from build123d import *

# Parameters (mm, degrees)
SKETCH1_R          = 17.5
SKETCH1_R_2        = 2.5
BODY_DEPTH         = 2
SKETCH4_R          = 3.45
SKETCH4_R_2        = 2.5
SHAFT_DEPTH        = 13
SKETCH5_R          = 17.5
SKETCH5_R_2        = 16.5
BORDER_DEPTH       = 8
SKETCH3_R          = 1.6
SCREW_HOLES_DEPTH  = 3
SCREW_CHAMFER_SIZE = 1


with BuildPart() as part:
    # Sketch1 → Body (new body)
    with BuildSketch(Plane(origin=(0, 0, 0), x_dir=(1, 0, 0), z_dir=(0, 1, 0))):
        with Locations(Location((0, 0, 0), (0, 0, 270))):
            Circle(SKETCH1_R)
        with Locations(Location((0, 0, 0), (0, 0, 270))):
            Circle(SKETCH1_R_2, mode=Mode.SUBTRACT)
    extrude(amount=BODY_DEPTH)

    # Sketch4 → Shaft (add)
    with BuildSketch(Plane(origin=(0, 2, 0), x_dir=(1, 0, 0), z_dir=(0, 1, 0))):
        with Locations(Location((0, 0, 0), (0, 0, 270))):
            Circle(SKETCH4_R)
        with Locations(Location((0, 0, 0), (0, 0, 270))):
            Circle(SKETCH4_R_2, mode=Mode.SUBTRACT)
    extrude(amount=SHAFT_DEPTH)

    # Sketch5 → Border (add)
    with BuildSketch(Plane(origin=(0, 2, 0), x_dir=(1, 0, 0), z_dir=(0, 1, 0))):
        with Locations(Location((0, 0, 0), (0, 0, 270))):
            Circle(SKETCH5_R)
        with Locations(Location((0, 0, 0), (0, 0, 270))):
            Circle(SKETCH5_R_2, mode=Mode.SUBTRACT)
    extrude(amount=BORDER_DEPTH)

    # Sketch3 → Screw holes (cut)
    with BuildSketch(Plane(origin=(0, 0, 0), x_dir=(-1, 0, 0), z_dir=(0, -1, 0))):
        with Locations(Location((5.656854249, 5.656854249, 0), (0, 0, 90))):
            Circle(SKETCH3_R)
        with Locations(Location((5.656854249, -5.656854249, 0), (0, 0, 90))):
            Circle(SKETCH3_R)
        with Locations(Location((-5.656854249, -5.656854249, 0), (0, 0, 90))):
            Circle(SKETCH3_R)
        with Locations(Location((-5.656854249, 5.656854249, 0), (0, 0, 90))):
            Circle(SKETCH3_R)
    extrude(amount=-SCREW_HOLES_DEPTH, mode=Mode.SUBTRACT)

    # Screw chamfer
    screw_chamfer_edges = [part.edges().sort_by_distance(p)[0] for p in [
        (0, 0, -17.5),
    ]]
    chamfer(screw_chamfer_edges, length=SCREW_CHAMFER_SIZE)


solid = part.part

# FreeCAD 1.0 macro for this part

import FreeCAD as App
import Part
import Sketcher

V = App.Vector
Q = App.Units.Quantity


def edges_at(feature, points):
    """Names of the edges that pass closest to the given points."""
    edges = feature.Shape.Edges
    near = lambda p: min(range(len(edges)), key=lambda i: edges[i].distToShape(Part.Vertex(*p))[0])
    return sorted({f"Edge{near(p) + 1}" for p in points})

doc = App.newDocument("Part")
body = doc.addObject("PartDesign::Body", "Body")

sketch1 = body.newObject("Sketcher::SketchObject", "Sketch")
sketch1.AttachmentSupport = (doc.getObject("XZ_Plane"), [""])
sketch1.MapMode = "FlatFace"
sketch1.addGeometry([
    Part.Circle(V(0, 0, 0), V(0, 0, 1), 17.5),
    Part.Circle(V(0, 0, 0), V(0, 0, 1), 2.5),
], False)
sketch1.addConstraint([
    Sketcher.Constraint("Coincident", 0, 3, -1, 1),
    Sketcher.Constraint("Coincident", 1, 3, -1, 1),
    Sketcher.Constraint("Diameter", 0, Q("35 mm")),
    Sketcher.Constraint("Diameter", 1, Q("5 mm")),
])
pad1 = body.newObject("PartDesign::Pad", "Pad")
pad1.Profile = sketch1
pad1.Length = 2
pad1.Reversed = True

sketch2 = body.newObject("Sketcher::SketchObject", "Sketch001")
sketch2.AttachmentSupport = (doc.getObject("XZ_Plane"), [""])
sketch2.MapMode = "FlatFace"
sketch2.AttachmentOffset = App.Placement(V(0, 0, -2), App.Rotation())
sketch2.addGeometry([
    Part.Circle(V(0, 0, 0), V(0, 0, 1), 3.5),
    Part.Circle(V(0, 0, 0), V(0, 0, 1), 2.5),
], False)
sketch2.addConstraint([
    Sketcher.Constraint("Coincident", 0, 3, -1, 1),
    Sketcher.Constraint("Coincident", 1, 3, -1, 1),
    Sketcher.Constraint("Diameter", 1, Q("5 mm")),
    Sketcher.Constraint("Diameter", 0, Q("6.9 mm")),
])
pad2 = body.newObject("PartDesign::Pad", "Pad001")
pad2.Profile = sketch2
pad2.Length = 13
pad2.Reversed = True

sketch3 = body.newObject("Sketcher::SketchObject", "Sketch002")
sketch3.AttachmentSupport = (doc.getObject("XZ_Plane"), [""])
sketch3.MapMode = "FlatFace"
sketch3.AttachmentOffset = App.Placement(V(0, 0, -2), App.Rotation())
sketch3.addGeometry([
    Part.Circle(V(0, 0, 0), V(0, 0, 1), 18),
    Part.Circle(V(0, 0, 0), V(0, 0, 1), 16),
], False)
sketch3.addConstraint([
    Sketcher.Constraint("Coincident", 0, 3, -1, 1),
    Sketcher.Constraint("Coincident", 1, 3, -1, 1),
    Sketcher.Constraint("Diameter", 0, Q("35 mm")),
    Sketcher.Constraint("Diameter", 1, Q("33 mm")),
])
pad3 = body.newObject("PartDesign::Pad", "Pad002")
pad3.Profile = sketch3
pad3.Length = 8
pad3.Reversed = True

sketch4 = body.newObject("Sketcher::SketchObject", "Sketch003")
sketch4.AttachmentSupport = (doc.getObject("XZ_Plane"), [""])
sketch4.MapMode = "FlatFace"
sketch4.addGeometry([
    Part.Circle(V(-5.7, -5.7, 0), V(0, 0, 1), 1.6),
    Part.Circle(V(-5.7, 5.7, 0), V(0, 0, 1), 1.6),
    Part.Circle(V(5.7, 5.7, 0), V(0, 0, 1), 1.6),
    Part.Circle(V(5.7, -5.7, 0), V(0, 0, 1), 1.6),
], False)
sketch4.addConstraint([
    Sketcher.Constraint("Equal", 0, 1),
    Sketcher.Constraint("Equal", 1, 2),
    Sketcher.Constraint("Equal", 2, 3),
    Sketcher.Constraint("Symmetric", 0, 3, 2, 3, -1, 1),
    Sketcher.Constraint("Symmetric", 1, 3, 3, 3, -1, 1),
    Sketcher.Constraint("Symmetric", 1, 3, 2, 3, -2),
    Sketcher.Constraint("Diameter", 0, Q("3.2 mm")),
    Sketcher.Constraint("DistanceY", 0, 3, 1, 3, Q("11.313708 mm")),
    Sketcher.Constraint("DistanceX", 1, 3, 2, 3, Q("11.313708 mm")),
])
pocket1 = body.newObject("PartDesign::Pocket", "Pocket")
pocket1.Profile = sketch4
pocket1.Length = 3
doc.recompute()

chamfer = body.newObject("PartDesign::Chamfer", "Chamfer")
chamfer.Base = (pocket1, edges_at(pocket1, [(0, 0, -17.5)]))
chamfer.Size = 1

doc.recompute()
